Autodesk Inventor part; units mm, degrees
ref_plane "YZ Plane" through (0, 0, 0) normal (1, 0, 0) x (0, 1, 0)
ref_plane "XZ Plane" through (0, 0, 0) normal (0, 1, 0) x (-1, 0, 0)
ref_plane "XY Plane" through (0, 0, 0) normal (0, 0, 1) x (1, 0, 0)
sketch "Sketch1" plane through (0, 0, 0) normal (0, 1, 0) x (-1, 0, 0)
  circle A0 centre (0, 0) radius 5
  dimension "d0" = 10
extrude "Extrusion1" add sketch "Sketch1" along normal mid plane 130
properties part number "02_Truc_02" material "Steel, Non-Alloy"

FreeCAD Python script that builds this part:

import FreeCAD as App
import Part
import Sketcher
from FreeCAD import Vector

doc = App.newDocument("Part")
body = doc.addObject("PartDesign::Body", "Body")

# Sketch on XZ plane
sketch1 = doc.addObject("Sketcher::SketchObject", "Sketch")
body.addObject(sketch1)
sketch1.AttachmentSupport = (doc.XZ_Plane, [""])
sketch1.MapMode = "FlatFace"
sketch1.addGeometry(Part.Circle(Vector(0, 0, 0), Vector(0, 0, 1), 5), False)
sketch1.addConstraint([
    Sketcher.Constraint("Coincident", 0, 3, -1, 1),
    Sketcher.Constraint("Diameter", 0, 10.0),
])
pad1 = doc.addObject("PartDesign::Pad", "Pad")
body.addObject(pad1)
pad1.Profile = sketch1
pad1.Length = 130
pad1.Midplane = True

doc.recompute()
